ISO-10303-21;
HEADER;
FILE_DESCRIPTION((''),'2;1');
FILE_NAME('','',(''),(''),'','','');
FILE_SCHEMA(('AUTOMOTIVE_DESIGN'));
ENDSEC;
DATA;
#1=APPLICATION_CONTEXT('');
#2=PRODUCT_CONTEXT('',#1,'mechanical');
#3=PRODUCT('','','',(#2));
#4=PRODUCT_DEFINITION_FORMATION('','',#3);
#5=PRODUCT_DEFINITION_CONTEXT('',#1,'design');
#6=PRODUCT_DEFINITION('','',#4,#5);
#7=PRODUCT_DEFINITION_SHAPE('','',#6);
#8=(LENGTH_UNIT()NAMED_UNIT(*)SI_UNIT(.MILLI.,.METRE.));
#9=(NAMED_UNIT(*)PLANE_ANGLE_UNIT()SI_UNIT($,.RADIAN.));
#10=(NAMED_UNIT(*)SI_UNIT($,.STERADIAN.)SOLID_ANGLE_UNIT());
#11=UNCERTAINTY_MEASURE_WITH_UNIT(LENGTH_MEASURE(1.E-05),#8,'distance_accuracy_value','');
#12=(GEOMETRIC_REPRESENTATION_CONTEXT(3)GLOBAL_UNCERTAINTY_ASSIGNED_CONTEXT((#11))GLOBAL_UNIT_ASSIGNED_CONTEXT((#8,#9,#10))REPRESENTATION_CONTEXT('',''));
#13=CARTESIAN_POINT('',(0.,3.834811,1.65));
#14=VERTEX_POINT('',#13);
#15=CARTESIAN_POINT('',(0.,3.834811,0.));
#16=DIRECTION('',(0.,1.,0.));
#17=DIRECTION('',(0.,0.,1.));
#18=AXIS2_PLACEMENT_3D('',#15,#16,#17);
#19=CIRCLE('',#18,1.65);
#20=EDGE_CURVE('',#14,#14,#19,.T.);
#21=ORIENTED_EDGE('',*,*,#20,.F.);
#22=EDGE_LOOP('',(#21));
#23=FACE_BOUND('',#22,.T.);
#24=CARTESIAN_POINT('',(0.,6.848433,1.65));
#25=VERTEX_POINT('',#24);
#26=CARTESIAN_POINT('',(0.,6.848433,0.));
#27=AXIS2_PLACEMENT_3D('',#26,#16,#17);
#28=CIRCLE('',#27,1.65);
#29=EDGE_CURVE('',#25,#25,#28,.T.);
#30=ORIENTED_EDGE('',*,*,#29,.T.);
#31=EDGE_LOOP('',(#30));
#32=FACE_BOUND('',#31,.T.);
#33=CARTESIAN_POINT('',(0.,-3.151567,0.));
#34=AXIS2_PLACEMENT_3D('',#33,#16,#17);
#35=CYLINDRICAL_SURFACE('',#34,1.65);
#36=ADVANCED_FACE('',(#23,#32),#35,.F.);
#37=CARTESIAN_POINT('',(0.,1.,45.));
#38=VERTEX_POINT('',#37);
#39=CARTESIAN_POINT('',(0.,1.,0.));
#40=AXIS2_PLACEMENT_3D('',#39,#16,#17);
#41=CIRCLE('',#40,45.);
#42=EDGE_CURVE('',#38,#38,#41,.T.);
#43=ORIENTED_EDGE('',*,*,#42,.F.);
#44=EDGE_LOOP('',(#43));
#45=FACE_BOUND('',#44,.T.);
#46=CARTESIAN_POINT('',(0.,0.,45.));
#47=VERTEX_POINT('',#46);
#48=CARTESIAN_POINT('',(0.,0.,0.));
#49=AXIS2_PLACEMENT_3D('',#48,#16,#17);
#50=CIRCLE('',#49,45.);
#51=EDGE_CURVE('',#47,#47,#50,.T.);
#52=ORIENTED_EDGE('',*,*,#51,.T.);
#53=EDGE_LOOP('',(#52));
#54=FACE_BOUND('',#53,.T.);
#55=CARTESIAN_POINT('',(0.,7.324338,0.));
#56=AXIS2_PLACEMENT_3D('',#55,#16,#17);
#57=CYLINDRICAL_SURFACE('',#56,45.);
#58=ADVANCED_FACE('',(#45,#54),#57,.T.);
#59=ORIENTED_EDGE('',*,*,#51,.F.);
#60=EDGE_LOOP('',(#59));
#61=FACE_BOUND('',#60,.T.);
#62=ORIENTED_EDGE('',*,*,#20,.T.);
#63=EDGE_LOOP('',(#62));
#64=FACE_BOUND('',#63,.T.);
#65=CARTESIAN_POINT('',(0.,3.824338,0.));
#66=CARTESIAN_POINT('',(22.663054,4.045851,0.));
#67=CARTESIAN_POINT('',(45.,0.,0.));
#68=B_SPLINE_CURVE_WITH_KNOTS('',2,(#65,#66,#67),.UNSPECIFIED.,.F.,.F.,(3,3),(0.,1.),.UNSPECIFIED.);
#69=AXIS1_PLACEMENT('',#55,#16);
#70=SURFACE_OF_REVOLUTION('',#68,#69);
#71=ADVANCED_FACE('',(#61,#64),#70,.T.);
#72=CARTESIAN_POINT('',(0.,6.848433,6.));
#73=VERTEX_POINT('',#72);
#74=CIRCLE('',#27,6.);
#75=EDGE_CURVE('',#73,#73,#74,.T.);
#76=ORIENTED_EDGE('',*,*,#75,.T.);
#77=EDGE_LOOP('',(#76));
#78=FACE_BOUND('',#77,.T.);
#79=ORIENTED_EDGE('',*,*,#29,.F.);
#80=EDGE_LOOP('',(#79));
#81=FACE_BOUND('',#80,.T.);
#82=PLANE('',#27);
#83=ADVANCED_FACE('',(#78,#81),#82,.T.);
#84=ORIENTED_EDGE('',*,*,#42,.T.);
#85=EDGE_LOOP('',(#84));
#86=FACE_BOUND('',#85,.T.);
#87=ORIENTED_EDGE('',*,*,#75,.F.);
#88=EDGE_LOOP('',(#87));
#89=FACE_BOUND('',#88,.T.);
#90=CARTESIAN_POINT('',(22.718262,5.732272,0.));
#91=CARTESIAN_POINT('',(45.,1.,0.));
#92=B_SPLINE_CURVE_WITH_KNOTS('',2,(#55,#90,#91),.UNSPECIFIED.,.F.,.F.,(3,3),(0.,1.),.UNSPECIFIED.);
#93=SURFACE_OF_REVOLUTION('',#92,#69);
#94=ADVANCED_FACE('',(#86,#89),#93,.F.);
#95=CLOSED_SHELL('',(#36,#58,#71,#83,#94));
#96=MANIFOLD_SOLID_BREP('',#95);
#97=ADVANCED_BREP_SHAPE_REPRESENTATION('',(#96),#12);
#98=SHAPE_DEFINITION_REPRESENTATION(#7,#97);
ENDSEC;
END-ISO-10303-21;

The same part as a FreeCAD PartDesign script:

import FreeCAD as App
import Part
import Sketcher
Q = App.Units.Quantity

doc = App.newDocument("Part")
params = doc.addObject("Spreadsheet::Sheet", "Params")
for row, (alias, value) in enumerate([
    ("revolution_angle", "360 deg"),
    ("sketch2_diameter", "3.3 mm"),
    ("pocket1_length", "10 mm"),
], start=1):
    params.set(f"A{row}", alias)
    params.set(f"B{row}", "=" + value)
    params.setAlias(f"B{row}", alias)

body = doc.addObject("PartDesign::Body", "Body")

# Sketch on XY plane
sketch1 = doc.addObject("Sketcher::SketchObject", "Sketch")
body.addObject(sketch1)
sketch1.AttachmentSupport = (doc.XY_Plane, [""])
sketch1.MapMode = "FlatFace"
sketch1.addGeometry([
    Part.BSplineCurve([App.Vector(0, 3.824338, 0), App.Vector(22.663054, 4.045851, 0), App.Vector(45, 0, 0)], [3, 3], [0, 1], False, 2, [1, 1, 1], False),  # 0
    Part.LineSegment(App.Vector(45, 0, 0), App.Vector(45, 1, 0)),  # 1
    Part.BSplineCurve([App.Vector(6, 6.848433, 0), App.Vector(25.664361, 5.10657, 0), App.Vector(45, 1, 0)], [3, 3], [0.132220311, 1], False, 2, [1, 1, 1], False),  # 2
    Part.LineSegment(App.Vector(6, 6.848433, 0), App.Vector(0, 6.848433, 0)),  # 3
    Part.LineSegment(App.Vector(0, 6.848433, 0), App.Vector(0, 3.824338, 0)),  # 4
], False)
sketch1.addConstraint([
    Sketcher.Constraint("Block", 0),
    Sketcher.Constraint("Block", 2),
    Sketcher.Constraint("Coincident", 0, 2, 1, 1),
    Sketcher.Constraint("Coincident", 1, 2, 2, 2),
    Sketcher.Constraint("Coincident", 2, 1, 3, 1),
    Sketcher.Constraint("Coincident", 3, 2, 4, 1),
    Sketcher.Constraint("Coincident", 4, 2, 0, 1),
    Sketcher.Constraint("Horizontal", 3),
    Sketcher.Constraint("Vertical", 4),
])
revolution = doc.addObject("PartDesign::Revolution", "Revolution")
body.addObject(revolution)
revolution.Profile = sketch1
revolution.ReferenceAxis = (sketch1, ["V_Axis"])
revolution.setExpression("Angle", "Params.revolution_angle")

# Sketch on XZ plane
sketch2 = doc.addObject("Sketcher::SketchObject", "Sketch001")
body.addObject(sketch2)
sketch2.AttachmentSupport = (doc.XZ_Plane, [""])
sketch2.MapMode = "FlatFace"
sketch2.AttachmentOffset = App.Placement(App.Vector(0, 0, -6.848433), App.Rotation())
sketch2.addGeometry(Part.Circle(App.Vector(0, 0, 0), App.Vector(0, 0, 1), 1.6), False)
sketch2.addConstraint([
    Sketcher.Constraint("Coincident", 0, 3, -1, 1),
    Sketcher.Constraint("Diameter", 0, Q("3.3 mm")),
])
sketch2.setExpression("Constraints[1]", "Params.sketch2_diameter")
pocket1 = doc.addObject("PartDesign::Pocket", "Pocket")
body.addObject(pocket1)
pocket1.Profile = sketch2
pocket1.setExpression("Length", "Params.pocket1_length")
pocket1.Reversed = True

doc.recompute()
